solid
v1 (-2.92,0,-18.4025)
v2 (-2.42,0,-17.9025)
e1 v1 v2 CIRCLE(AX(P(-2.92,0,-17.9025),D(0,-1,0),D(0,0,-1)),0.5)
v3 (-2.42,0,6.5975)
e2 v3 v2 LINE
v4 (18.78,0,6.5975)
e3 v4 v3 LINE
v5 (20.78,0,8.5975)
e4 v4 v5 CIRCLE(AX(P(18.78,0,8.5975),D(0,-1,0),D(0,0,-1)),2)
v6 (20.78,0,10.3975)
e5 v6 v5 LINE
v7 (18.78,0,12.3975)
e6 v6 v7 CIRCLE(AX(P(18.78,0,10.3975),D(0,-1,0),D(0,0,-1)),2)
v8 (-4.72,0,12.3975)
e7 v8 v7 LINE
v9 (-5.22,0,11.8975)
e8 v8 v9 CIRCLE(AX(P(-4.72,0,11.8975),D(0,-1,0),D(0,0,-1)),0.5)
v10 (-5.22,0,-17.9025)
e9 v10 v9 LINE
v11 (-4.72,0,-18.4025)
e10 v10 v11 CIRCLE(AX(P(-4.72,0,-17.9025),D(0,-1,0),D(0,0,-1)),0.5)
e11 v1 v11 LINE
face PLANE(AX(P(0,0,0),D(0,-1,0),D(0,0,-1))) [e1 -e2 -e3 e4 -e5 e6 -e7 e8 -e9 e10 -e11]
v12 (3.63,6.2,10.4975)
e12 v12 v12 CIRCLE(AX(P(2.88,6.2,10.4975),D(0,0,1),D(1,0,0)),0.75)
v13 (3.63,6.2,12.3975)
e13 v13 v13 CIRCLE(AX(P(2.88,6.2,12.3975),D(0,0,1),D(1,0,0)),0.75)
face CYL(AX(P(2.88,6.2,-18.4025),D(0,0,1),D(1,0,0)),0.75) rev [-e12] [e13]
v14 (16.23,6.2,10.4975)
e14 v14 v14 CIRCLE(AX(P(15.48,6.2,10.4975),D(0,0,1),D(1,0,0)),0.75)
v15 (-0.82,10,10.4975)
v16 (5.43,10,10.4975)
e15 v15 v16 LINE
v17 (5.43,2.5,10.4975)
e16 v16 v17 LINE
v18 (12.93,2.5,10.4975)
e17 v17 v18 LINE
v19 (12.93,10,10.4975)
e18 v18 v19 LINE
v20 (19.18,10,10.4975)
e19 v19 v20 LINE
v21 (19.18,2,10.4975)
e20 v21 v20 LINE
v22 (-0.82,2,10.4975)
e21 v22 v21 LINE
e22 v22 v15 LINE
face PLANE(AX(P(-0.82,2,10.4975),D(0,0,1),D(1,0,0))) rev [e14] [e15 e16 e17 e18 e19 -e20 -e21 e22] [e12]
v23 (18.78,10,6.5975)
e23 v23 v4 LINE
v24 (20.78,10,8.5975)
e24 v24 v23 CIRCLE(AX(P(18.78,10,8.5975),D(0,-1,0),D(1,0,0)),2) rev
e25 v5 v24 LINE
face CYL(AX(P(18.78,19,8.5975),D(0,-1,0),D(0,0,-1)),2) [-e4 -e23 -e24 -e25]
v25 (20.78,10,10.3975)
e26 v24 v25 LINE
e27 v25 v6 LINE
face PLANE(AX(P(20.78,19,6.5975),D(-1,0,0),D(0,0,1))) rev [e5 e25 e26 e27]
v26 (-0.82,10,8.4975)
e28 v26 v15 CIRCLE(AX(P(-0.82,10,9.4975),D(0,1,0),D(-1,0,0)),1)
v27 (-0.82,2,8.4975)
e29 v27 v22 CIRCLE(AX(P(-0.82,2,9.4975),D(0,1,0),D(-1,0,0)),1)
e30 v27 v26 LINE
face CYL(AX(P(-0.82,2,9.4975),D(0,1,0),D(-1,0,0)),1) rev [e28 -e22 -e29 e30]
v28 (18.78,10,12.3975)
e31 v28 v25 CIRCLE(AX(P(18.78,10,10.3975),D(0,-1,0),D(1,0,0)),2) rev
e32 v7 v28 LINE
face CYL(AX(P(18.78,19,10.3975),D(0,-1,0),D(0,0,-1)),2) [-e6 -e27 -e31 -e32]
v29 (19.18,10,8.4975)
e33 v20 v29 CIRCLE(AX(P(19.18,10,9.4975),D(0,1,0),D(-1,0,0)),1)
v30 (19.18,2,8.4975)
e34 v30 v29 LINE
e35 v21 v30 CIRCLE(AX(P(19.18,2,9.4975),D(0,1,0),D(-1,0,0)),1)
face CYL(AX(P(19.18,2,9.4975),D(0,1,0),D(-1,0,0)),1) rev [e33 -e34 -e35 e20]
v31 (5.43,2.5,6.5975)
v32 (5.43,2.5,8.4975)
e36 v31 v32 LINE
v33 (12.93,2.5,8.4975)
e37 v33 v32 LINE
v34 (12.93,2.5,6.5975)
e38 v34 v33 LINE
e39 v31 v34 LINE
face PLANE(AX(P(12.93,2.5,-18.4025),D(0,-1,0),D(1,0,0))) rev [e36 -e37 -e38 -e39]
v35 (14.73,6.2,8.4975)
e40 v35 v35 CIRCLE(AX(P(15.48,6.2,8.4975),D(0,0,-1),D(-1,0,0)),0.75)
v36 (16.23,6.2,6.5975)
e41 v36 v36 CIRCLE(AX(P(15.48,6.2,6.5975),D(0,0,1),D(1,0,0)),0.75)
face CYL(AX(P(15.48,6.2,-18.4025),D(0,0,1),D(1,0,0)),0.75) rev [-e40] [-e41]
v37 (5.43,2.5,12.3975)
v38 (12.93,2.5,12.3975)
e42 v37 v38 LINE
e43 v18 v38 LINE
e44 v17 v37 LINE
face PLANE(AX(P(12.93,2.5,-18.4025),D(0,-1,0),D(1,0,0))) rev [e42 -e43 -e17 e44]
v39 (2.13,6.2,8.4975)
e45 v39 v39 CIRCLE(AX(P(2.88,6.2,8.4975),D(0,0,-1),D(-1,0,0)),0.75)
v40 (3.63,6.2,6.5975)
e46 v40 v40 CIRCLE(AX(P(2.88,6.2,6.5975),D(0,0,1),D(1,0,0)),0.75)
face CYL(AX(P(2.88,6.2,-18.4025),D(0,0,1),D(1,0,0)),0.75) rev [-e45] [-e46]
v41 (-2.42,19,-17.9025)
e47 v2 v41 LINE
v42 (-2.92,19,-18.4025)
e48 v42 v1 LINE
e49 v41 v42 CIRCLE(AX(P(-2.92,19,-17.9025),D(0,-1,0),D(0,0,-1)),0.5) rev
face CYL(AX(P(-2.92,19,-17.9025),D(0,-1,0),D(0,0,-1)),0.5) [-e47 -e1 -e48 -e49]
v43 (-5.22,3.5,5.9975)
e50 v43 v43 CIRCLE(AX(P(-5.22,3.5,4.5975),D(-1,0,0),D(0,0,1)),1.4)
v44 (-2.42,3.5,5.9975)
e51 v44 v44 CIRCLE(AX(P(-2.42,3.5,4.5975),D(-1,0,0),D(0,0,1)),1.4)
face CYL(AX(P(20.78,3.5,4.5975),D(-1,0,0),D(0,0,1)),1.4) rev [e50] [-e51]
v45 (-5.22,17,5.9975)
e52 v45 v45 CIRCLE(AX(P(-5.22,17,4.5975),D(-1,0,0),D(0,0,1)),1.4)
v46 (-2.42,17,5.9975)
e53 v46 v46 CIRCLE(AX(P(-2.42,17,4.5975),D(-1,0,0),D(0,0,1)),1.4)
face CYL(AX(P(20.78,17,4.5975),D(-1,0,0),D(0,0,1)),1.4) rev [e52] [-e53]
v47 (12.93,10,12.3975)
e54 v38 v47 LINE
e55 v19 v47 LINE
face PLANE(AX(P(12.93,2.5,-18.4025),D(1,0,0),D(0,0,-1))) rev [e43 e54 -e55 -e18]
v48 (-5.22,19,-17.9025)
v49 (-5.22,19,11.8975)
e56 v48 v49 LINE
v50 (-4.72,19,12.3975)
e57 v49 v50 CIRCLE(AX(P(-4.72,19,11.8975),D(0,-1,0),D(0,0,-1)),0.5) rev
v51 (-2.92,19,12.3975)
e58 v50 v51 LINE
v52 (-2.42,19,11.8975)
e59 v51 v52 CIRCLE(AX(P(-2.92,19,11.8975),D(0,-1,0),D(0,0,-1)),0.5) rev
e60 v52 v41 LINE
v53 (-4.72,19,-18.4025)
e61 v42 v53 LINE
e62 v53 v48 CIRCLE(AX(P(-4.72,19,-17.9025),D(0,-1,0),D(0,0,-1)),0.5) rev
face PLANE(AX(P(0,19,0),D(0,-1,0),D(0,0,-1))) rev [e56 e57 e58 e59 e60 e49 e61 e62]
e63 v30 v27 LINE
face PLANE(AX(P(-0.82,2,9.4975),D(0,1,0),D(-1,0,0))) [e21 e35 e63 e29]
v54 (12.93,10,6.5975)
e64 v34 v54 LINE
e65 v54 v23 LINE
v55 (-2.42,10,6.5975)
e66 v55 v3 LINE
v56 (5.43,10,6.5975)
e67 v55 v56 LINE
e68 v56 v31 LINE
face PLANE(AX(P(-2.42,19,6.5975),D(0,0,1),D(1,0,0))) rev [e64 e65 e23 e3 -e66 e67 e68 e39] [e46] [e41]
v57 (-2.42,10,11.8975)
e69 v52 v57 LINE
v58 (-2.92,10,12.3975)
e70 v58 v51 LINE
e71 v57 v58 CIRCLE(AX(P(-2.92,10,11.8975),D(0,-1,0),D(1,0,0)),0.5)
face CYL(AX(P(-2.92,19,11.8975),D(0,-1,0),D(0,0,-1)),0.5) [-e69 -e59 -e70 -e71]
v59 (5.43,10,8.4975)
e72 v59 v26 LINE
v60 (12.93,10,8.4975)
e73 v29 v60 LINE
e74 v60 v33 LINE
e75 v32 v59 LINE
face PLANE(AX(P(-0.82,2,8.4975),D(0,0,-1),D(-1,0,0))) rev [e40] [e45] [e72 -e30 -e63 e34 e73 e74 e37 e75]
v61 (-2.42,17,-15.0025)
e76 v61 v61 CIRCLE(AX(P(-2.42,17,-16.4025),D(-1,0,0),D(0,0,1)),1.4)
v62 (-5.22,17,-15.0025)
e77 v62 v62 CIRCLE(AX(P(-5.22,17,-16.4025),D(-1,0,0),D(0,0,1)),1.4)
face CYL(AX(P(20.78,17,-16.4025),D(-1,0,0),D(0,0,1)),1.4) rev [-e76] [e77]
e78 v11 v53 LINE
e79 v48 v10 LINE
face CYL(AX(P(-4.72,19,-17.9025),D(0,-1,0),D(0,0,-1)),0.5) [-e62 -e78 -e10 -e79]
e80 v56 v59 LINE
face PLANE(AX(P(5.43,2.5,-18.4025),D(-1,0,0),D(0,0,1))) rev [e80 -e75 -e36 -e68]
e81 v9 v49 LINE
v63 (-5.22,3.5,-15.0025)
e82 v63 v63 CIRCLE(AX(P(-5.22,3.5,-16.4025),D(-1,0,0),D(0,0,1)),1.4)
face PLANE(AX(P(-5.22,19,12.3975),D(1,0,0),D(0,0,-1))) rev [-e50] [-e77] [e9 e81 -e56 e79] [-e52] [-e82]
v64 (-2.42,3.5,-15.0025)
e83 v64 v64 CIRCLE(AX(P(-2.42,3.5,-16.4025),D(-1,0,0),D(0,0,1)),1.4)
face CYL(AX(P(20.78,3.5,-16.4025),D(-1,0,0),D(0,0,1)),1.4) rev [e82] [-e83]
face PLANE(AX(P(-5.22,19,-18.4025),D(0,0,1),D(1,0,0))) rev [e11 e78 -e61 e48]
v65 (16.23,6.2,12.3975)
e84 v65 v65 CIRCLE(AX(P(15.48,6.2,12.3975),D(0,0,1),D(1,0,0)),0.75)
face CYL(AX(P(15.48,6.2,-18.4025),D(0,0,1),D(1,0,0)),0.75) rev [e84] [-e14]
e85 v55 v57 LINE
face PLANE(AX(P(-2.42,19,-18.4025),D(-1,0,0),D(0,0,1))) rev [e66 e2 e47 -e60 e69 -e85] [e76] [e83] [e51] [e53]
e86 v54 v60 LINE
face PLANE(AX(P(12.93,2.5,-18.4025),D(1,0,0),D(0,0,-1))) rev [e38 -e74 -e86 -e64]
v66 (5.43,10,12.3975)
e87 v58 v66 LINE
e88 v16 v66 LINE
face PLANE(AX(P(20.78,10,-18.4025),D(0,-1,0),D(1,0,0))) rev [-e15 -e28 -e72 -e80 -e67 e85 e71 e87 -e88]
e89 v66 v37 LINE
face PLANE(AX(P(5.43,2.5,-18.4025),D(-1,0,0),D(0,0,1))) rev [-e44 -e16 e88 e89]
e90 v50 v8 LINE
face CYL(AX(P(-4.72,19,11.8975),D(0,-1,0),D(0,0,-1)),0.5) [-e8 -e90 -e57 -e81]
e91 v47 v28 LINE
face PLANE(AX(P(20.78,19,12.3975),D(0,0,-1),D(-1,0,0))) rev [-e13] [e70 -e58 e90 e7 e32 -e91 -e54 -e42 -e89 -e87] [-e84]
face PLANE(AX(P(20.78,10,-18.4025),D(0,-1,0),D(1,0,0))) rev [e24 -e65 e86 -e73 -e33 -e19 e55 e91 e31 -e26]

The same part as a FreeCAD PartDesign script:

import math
import FreeCAD as App
import Part
import Sketcher
from FreeCAD import Vector
Q = App.Units.Quantity


def edges_at(feature, points):
    """Names of the edges that pass closest to the given points."""
    edges = feature.Shape.Edges
    near = lambda p: min(range(len(edges)), key=lambda i: edges[i].distToShape(Part.Vertex(*p))[0])
    return sorted({f"Edge{near(p) + 1}" for p in points})


def add_polygon(sketch, points):
    """Adds a closed chain of lines whose ends are joined by coincident constraints."""
    first, n = sketch.GeometryCount, len(points)
    for a, b in zip(points, points[1:] + points[:1]):
        sketch.addGeometry(Part.LineSegment(App.Vector(*a, 0), App.Vector(*b, 0)), False)
    for i in range(n):
        sketch.addConstraint(Sketcher.Constraint("Coincident", first + i, 2, first + (i + 1) % n, 1))

doc = App.newDocument("Part")
params = doc.addObject("Spreadsheet::Sheet", "Params")
for row, (alias, value) in enumerate([
    ("sketch1_width", "26 mm"),
    ("sketch1_height", "25 mm"),
    ("sketch1_width2", "2.8 mm"),
    ("sketch1_height2", "30.8 mm"),
    ("pad1_length", "19 mm"),
    ("sketch2_height", "9 mm"),
    ("sketch2_width", "23.2 mm"),
    ("sketch3_radius", "1 mm"),
    ("sketch3_width", "20 mm"),
    ("pocket2_length", "8 mm"),
    ("sketch4_width", "7.5 mm"),
    ("sketch5_diameter", "2.8 mm"),
    ("sketch6_diameter", "1.5 mm"),
    ("fillet_radius", "0.5 mm"),
    ("fillet2_radius", "2 mm"),
    ("fillet3_radius", "0.5 mm"),
], start=1):
    params.set(f"A{row}", alias)
    params.set(f"B{row}", "=" + value)
    params.setAlias(f"B{row}", alias)

body = doc.addObject("PartDesign::Body", "Body")

# Sketch on XZ plane
sketch1 = body.newObject("Sketcher::SketchObject", "Sketch")
sketch1.AttachmentSupport = (doc.getObject("XZ_Plane"), [""])
sketch1.MapMode = "FlatFace"
add_polygon(sketch1, [(-2.4, -18.4), (-5.2, -18.4), (-5.2, 12.4), (20.8, 12.4), (20.8, 6.6), (-2.4, 6.6)])  # lines 0-5
sketch1.addConstraint([
    Sketcher.Constraint("Horizontal", 0),
    Sketcher.Constraint("Vertical", 1),
    Sketcher.Constraint("Horizontal", 2),
    Sketcher.Constraint("Vertical", 3),
    Sketcher.Constraint("Horizontal", 4),
    Sketcher.Constraint("Vertical", 5),
    Sketcher.Constraint("DistanceX", 2, 1, 2, 2, Q("26 mm")),
    Sketcher.Constraint("DistanceY", 5, 2, 5, 1, Q("25 mm")),
    Sketcher.Constraint("DistanceX", 0, 2, 0, 1, Q("2.8 mm")),
    Sketcher.Constraint("DistanceY", 1, 1, 1, 2, Q("30.8 mm")),
    Sketcher.Constraint("DistanceX", 0, 2, -1, 1, Q("5.22 mm")),
    Sketcher.Constraint("DistanceY", 0, 2, -1, 1, Q("18.4025 mm")),
])
sketch1.setExpression("Constraints[12]", "Params.sketch1_width")
sketch1.setExpression("Constraints[13]", "Params.sketch1_height")
sketch1.setExpression("Constraints[14]", "Params.sketch1_width2")
sketch1.setExpression("Constraints[15]", "Params.sketch1_height2")
pad1 = body.newObject("PartDesign::Pad", "Pad")
pad1.Profile = sketch1
pad1.setExpression("Length", "Params.pad1_length")
pad1.Reversed = True

# Sketch on XY plane
sketch2 = body.newObject("Sketcher::SketchObject", "Sketch001")
sketch2.AttachmentSupport = (doc.getObject("XY_Plane"), [""])
sketch2.MapMode = "FlatFace"
sketch2.AttachmentOffset = App.Placement(Vector(0, 0, 12.3975), App.Rotation())
add_polygon(sketch2, [(-2, 19), (-2, 10), (21, 10), (21, 19)])  # lines 0-3
sketch2.addConstraint([
    Sketcher.Constraint("Vertical", 0),
    Sketcher.Constraint("Horizontal", 1),
    Sketcher.Constraint("Vertical", 2),
    Sketcher.Constraint("Horizontal", 3),
    Sketcher.Constraint("DistanceY", 0, 2, 0, 1, Q("9 mm")),
    Sketcher.Constraint("DistanceX", 1, 1, 1, 2, Q("23.2 mm")),
    Sketcher.Constraint("DistanceY", -1, 1, 0, 2, Q("10 mm")),
    Sketcher.Constraint("DistanceX", 0, 2, -1, 1, Q("2.42 mm")),
])
sketch2.setExpression("Constraints[8]", "Params.sketch2_height")
sketch2.setExpression("Constraints[9]", "Params.sketch2_width")
pocket1 = body.newObject("PartDesign::Pocket", "Pocket")
pocket1.Profile = sketch2
pocket1.Type = "ThroughAll"

# Sketch on XZ plane
sketch3 = body.newObject("Sketcher::SketchObject", "Sketch002")
sketch3.AttachmentSupport = (doc.getObject("XZ_Plane"), [""])
sketch3.MapMode = "FlatFace"
sketch3.AttachmentOffset = App.Placement(Vector(0, 0, -10), App.Rotation())
sketch3.addGeometry([
    Part.LineSegment(Vector(19.2, 8.5, 0), Vector(-0.8, 8.5, 0)),
    Part.ArcOfCircle(Part.Circle(Vector(-0.8, 9.5, 0), Vector(0, 0, 1), 1), math.radians(90), math.radians(270)),
    Part.LineSegment(Vector(-0.8, 10.5, 0), Vector(19.2, 10.5, 0)),
    Part.ArcOfCircle(Part.Circle(Vector(19.2, 9.5, 0), Vector(0, 0, 1), 1), math.radians(-90), math.radians(90)),
], False)
sketch3.addConstraint([
    Sketcher.Constraint("Tangent", 0, 2, 1, 2),
    Sketcher.Constraint("Tangent", 1, 1, 2, 1),
    Sketcher.Constraint("Tangent", 2, 2, 3, 2),
    Sketcher.Constraint("Tangent", 3, 1, 0, 1),
    Sketcher.Constraint("Horizontal", 0),
    Sketcher.Constraint("Horizontal", 2),
    Sketcher.Constraint("Radius", 1, Q("1 mm")),
    Sketcher.Constraint("DistanceX", 0, 2, 0, 1, Q("20 mm")),
    Sketcher.Constraint("DistanceX", 1, 3, -1, 1, Q("0.82 mm")),
    Sketcher.Constraint("DistanceY", -1, 1, 1, 3, Q("9.4975 mm")),
])
sketch3.setExpression("Constraints[6]", "Params.sketch3_radius")
sketch3.setExpression("Constraints[7]", "Params.sketch3_width")
pocket2 = body.newObject("PartDesign::Pocket", "Pocket001")
pocket2.Profile = sketch3
pocket2.setExpression("Length", "Params.pocket2_length")
pocket2.Reversed = True

# Sketch on XY plane
sketch4 = body.newObject("Sketcher::SketchObject", "Sketch003")
sketch4.AttachmentSupport = (doc.getObject("XY_Plane"), [""])
sketch4.MapMode = "FlatFace"
sketch4.AttachmentOffset = App.Placement(Vector(0, 0, 12.3975), App.Rotation())
add_polygon(sketch4, [(5, 10), (5, 2), (13, 2), (13, 10)])  # lines 0-3
sketch4.addConstraint([
    Sketcher.Constraint("Vertical", 0),
    Sketcher.Constraint("Horizontal", 1),
    Sketcher.Constraint("Vertical", 2),
    Sketcher.Constraint("Horizontal", 3),
    Sketcher.Constraint("Equal", 3, 0),
    Sketcher.Constraint("DistanceX", 1, 1, 1, 2, Q("7.5 mm")),
    Sketcher.Constraint("DistanceY", -1, 1, 2, 2, Q("10 mm")),
    Sketcher.Constraint("DistanceX", -1, 1, 0, 2, Q("5.43 mm")),
])
sketch4.setExpression("Constraints[9]", "Params.sketch4_width")
pocket3 = body.newObject("PartDesign::Pocket", "Pocket002")
pocket3.Profile = sketch4
pocket3.Type = "ThroughAll"

# Sketch on YZ plane
sketch5 = body.newObject("Sketcher::SketchObject", "Sketch004")
sketch5.AttachmentSupport = (doc.getObject("YZ_Plane"), [""])
sketch5.MapMode = "FlatFace"
sketch5.AttachmentOffset = App.Placement(Vector(0, 0, -5.22), App.Rotation())
sketch5.addGeometry([
    Part.Circle(Vector(17, -16.4, 0), Vector(0, 0, 1), 1.4),
    Part.Circle(Vector(17, 4.6, 0), Vector(0, 0, 1), 1.4),
    Part.Circle(Vector(3.5, -16.4, 0), Vector(0, 0, 1), 1.4),
    Part.Circle(Vector(3.5, 4.6, 0), Vector(0, 0, 1), 1.4),
], False)
sketch5.addConstraint([
    Sketcher.Constraint("Equal", 0, 1),
    Sketcher.Constraint("Equal", 1, 2),
    Sketcher.Constraint("Equal", 2, 3),
    Sketcher.Constraint("Horizontal", 0, 3, 2, 3),
    Sketcher.Constraint("Horizontal", 1, 3, 3, 3),
    Sketcher.Constraint("Vertical", 0, 3, 1, 3),
    Sketcher.Constraint("Vertical", 2, 3, 3, 3),
    Sketcher.Constraint("Diameter", 0, Q("2.8 mm")),
    Sketcher.Constraint("DistanceX", -1, 1, 0, 3, Q("17 mm")),
    Sketcher.Constraint("DistanceY", 0, 3, 1, 3, Q("21 mm")),
    Sketcher.Constraint("DistanceX", -1, 1, 2, 3, Q("3.5 mm")),
    Sketcher.Constraint("DistanceY", 0, 3, -1, 1, Q("16.4025 mm")),
])
sketch5.setExpression("Constraints[7]", "Params.sketch5_diameter")
pocket4 = body.newObject("PartDesign::Pocket", "Pocket003")
pocket4.Profile = sketch5
pocket4.Type = "ThroughAll"
pocket4.Reversed = True

# Sketch on XY plane
sketch6 = body.newObject("Sketcher::SketchObject", "Sketch005")
sketch6.AttachmentSupport = (doc.getObject("XY_Plane"), [""])
sketch6.MapMode = "FlatFace"
sketch6.AttachmentOffset = App.Placement(Vector(0, 0, 12.3975), App.Rotation())
sketch6.addGeometry([
    Part.Circle(Vector(2.9, 6.2, 0), Vector(0, 0, 1), 0.8),
    Part.Circle(Vector(15.5, 6.2, 0), Vector(0, 0, 1), 0.8),
], False)
sketch6.addConstraint([
    Sketcher.Constraint("Equal", 0, 1),
    Sketcher.Constraint("Horizontal", 0, 3, 1, 3),
    Sketcher.Constraint("Diameter", 0, Q("1.5 mm")),
    Sketcher.Constraint("DistanceY", -1, 1, 0, 3, Q("6.2 mm")),
    Sketcher.Constraint("DistanceX", 0, 3, 1, 3, Q("12.6 mm")),
    Sketcher.Constraint("DistanceX", -1, 1, 0, 3, Q("2.88 mm")),
])
sketch6.setExpression("Constraints[2]", "Params.sketch6_diameter")
pocket5 = body.newObject("PartDesign::Pocket", "Pocket004")
pocket5.Profile = sketch6
pocket5.Type = "ThroughAll"
doc.recompute()

fillet = body.newObject("PartDesign::Fillet", "Fillet")
fillet.Base = (pocket5, edges_at(pocket5, [(-5.22, 9.5, -18.402), (-2.42, 9.5, -18.402), (-5.22, 9.5, 12.398)]))
fillet.setExpression("Radius", "Params.fillet_radius")
doc.recompute()

fillet2 = body.newObject("PartDesign::Fillet", "Fillet001")
fillet2.Base = (fillet, edges_at(fillet, [(20.78, 5, 6.598), (20.78, 5, 12.398)]))
fillet2.setExpression("Radius", "Params.fillet2_radius")
doc.recompute()

fillet3 = body.newObject("PartDesign::Fillet", "Fillet002")
fillet3.Base = (fillet2, edges_at(fillet2, [(-2.42, 14.5, 12.398)]))
fillet3.setExpression("Radius", "Params.fillet3_radius")

doc.recompute()
